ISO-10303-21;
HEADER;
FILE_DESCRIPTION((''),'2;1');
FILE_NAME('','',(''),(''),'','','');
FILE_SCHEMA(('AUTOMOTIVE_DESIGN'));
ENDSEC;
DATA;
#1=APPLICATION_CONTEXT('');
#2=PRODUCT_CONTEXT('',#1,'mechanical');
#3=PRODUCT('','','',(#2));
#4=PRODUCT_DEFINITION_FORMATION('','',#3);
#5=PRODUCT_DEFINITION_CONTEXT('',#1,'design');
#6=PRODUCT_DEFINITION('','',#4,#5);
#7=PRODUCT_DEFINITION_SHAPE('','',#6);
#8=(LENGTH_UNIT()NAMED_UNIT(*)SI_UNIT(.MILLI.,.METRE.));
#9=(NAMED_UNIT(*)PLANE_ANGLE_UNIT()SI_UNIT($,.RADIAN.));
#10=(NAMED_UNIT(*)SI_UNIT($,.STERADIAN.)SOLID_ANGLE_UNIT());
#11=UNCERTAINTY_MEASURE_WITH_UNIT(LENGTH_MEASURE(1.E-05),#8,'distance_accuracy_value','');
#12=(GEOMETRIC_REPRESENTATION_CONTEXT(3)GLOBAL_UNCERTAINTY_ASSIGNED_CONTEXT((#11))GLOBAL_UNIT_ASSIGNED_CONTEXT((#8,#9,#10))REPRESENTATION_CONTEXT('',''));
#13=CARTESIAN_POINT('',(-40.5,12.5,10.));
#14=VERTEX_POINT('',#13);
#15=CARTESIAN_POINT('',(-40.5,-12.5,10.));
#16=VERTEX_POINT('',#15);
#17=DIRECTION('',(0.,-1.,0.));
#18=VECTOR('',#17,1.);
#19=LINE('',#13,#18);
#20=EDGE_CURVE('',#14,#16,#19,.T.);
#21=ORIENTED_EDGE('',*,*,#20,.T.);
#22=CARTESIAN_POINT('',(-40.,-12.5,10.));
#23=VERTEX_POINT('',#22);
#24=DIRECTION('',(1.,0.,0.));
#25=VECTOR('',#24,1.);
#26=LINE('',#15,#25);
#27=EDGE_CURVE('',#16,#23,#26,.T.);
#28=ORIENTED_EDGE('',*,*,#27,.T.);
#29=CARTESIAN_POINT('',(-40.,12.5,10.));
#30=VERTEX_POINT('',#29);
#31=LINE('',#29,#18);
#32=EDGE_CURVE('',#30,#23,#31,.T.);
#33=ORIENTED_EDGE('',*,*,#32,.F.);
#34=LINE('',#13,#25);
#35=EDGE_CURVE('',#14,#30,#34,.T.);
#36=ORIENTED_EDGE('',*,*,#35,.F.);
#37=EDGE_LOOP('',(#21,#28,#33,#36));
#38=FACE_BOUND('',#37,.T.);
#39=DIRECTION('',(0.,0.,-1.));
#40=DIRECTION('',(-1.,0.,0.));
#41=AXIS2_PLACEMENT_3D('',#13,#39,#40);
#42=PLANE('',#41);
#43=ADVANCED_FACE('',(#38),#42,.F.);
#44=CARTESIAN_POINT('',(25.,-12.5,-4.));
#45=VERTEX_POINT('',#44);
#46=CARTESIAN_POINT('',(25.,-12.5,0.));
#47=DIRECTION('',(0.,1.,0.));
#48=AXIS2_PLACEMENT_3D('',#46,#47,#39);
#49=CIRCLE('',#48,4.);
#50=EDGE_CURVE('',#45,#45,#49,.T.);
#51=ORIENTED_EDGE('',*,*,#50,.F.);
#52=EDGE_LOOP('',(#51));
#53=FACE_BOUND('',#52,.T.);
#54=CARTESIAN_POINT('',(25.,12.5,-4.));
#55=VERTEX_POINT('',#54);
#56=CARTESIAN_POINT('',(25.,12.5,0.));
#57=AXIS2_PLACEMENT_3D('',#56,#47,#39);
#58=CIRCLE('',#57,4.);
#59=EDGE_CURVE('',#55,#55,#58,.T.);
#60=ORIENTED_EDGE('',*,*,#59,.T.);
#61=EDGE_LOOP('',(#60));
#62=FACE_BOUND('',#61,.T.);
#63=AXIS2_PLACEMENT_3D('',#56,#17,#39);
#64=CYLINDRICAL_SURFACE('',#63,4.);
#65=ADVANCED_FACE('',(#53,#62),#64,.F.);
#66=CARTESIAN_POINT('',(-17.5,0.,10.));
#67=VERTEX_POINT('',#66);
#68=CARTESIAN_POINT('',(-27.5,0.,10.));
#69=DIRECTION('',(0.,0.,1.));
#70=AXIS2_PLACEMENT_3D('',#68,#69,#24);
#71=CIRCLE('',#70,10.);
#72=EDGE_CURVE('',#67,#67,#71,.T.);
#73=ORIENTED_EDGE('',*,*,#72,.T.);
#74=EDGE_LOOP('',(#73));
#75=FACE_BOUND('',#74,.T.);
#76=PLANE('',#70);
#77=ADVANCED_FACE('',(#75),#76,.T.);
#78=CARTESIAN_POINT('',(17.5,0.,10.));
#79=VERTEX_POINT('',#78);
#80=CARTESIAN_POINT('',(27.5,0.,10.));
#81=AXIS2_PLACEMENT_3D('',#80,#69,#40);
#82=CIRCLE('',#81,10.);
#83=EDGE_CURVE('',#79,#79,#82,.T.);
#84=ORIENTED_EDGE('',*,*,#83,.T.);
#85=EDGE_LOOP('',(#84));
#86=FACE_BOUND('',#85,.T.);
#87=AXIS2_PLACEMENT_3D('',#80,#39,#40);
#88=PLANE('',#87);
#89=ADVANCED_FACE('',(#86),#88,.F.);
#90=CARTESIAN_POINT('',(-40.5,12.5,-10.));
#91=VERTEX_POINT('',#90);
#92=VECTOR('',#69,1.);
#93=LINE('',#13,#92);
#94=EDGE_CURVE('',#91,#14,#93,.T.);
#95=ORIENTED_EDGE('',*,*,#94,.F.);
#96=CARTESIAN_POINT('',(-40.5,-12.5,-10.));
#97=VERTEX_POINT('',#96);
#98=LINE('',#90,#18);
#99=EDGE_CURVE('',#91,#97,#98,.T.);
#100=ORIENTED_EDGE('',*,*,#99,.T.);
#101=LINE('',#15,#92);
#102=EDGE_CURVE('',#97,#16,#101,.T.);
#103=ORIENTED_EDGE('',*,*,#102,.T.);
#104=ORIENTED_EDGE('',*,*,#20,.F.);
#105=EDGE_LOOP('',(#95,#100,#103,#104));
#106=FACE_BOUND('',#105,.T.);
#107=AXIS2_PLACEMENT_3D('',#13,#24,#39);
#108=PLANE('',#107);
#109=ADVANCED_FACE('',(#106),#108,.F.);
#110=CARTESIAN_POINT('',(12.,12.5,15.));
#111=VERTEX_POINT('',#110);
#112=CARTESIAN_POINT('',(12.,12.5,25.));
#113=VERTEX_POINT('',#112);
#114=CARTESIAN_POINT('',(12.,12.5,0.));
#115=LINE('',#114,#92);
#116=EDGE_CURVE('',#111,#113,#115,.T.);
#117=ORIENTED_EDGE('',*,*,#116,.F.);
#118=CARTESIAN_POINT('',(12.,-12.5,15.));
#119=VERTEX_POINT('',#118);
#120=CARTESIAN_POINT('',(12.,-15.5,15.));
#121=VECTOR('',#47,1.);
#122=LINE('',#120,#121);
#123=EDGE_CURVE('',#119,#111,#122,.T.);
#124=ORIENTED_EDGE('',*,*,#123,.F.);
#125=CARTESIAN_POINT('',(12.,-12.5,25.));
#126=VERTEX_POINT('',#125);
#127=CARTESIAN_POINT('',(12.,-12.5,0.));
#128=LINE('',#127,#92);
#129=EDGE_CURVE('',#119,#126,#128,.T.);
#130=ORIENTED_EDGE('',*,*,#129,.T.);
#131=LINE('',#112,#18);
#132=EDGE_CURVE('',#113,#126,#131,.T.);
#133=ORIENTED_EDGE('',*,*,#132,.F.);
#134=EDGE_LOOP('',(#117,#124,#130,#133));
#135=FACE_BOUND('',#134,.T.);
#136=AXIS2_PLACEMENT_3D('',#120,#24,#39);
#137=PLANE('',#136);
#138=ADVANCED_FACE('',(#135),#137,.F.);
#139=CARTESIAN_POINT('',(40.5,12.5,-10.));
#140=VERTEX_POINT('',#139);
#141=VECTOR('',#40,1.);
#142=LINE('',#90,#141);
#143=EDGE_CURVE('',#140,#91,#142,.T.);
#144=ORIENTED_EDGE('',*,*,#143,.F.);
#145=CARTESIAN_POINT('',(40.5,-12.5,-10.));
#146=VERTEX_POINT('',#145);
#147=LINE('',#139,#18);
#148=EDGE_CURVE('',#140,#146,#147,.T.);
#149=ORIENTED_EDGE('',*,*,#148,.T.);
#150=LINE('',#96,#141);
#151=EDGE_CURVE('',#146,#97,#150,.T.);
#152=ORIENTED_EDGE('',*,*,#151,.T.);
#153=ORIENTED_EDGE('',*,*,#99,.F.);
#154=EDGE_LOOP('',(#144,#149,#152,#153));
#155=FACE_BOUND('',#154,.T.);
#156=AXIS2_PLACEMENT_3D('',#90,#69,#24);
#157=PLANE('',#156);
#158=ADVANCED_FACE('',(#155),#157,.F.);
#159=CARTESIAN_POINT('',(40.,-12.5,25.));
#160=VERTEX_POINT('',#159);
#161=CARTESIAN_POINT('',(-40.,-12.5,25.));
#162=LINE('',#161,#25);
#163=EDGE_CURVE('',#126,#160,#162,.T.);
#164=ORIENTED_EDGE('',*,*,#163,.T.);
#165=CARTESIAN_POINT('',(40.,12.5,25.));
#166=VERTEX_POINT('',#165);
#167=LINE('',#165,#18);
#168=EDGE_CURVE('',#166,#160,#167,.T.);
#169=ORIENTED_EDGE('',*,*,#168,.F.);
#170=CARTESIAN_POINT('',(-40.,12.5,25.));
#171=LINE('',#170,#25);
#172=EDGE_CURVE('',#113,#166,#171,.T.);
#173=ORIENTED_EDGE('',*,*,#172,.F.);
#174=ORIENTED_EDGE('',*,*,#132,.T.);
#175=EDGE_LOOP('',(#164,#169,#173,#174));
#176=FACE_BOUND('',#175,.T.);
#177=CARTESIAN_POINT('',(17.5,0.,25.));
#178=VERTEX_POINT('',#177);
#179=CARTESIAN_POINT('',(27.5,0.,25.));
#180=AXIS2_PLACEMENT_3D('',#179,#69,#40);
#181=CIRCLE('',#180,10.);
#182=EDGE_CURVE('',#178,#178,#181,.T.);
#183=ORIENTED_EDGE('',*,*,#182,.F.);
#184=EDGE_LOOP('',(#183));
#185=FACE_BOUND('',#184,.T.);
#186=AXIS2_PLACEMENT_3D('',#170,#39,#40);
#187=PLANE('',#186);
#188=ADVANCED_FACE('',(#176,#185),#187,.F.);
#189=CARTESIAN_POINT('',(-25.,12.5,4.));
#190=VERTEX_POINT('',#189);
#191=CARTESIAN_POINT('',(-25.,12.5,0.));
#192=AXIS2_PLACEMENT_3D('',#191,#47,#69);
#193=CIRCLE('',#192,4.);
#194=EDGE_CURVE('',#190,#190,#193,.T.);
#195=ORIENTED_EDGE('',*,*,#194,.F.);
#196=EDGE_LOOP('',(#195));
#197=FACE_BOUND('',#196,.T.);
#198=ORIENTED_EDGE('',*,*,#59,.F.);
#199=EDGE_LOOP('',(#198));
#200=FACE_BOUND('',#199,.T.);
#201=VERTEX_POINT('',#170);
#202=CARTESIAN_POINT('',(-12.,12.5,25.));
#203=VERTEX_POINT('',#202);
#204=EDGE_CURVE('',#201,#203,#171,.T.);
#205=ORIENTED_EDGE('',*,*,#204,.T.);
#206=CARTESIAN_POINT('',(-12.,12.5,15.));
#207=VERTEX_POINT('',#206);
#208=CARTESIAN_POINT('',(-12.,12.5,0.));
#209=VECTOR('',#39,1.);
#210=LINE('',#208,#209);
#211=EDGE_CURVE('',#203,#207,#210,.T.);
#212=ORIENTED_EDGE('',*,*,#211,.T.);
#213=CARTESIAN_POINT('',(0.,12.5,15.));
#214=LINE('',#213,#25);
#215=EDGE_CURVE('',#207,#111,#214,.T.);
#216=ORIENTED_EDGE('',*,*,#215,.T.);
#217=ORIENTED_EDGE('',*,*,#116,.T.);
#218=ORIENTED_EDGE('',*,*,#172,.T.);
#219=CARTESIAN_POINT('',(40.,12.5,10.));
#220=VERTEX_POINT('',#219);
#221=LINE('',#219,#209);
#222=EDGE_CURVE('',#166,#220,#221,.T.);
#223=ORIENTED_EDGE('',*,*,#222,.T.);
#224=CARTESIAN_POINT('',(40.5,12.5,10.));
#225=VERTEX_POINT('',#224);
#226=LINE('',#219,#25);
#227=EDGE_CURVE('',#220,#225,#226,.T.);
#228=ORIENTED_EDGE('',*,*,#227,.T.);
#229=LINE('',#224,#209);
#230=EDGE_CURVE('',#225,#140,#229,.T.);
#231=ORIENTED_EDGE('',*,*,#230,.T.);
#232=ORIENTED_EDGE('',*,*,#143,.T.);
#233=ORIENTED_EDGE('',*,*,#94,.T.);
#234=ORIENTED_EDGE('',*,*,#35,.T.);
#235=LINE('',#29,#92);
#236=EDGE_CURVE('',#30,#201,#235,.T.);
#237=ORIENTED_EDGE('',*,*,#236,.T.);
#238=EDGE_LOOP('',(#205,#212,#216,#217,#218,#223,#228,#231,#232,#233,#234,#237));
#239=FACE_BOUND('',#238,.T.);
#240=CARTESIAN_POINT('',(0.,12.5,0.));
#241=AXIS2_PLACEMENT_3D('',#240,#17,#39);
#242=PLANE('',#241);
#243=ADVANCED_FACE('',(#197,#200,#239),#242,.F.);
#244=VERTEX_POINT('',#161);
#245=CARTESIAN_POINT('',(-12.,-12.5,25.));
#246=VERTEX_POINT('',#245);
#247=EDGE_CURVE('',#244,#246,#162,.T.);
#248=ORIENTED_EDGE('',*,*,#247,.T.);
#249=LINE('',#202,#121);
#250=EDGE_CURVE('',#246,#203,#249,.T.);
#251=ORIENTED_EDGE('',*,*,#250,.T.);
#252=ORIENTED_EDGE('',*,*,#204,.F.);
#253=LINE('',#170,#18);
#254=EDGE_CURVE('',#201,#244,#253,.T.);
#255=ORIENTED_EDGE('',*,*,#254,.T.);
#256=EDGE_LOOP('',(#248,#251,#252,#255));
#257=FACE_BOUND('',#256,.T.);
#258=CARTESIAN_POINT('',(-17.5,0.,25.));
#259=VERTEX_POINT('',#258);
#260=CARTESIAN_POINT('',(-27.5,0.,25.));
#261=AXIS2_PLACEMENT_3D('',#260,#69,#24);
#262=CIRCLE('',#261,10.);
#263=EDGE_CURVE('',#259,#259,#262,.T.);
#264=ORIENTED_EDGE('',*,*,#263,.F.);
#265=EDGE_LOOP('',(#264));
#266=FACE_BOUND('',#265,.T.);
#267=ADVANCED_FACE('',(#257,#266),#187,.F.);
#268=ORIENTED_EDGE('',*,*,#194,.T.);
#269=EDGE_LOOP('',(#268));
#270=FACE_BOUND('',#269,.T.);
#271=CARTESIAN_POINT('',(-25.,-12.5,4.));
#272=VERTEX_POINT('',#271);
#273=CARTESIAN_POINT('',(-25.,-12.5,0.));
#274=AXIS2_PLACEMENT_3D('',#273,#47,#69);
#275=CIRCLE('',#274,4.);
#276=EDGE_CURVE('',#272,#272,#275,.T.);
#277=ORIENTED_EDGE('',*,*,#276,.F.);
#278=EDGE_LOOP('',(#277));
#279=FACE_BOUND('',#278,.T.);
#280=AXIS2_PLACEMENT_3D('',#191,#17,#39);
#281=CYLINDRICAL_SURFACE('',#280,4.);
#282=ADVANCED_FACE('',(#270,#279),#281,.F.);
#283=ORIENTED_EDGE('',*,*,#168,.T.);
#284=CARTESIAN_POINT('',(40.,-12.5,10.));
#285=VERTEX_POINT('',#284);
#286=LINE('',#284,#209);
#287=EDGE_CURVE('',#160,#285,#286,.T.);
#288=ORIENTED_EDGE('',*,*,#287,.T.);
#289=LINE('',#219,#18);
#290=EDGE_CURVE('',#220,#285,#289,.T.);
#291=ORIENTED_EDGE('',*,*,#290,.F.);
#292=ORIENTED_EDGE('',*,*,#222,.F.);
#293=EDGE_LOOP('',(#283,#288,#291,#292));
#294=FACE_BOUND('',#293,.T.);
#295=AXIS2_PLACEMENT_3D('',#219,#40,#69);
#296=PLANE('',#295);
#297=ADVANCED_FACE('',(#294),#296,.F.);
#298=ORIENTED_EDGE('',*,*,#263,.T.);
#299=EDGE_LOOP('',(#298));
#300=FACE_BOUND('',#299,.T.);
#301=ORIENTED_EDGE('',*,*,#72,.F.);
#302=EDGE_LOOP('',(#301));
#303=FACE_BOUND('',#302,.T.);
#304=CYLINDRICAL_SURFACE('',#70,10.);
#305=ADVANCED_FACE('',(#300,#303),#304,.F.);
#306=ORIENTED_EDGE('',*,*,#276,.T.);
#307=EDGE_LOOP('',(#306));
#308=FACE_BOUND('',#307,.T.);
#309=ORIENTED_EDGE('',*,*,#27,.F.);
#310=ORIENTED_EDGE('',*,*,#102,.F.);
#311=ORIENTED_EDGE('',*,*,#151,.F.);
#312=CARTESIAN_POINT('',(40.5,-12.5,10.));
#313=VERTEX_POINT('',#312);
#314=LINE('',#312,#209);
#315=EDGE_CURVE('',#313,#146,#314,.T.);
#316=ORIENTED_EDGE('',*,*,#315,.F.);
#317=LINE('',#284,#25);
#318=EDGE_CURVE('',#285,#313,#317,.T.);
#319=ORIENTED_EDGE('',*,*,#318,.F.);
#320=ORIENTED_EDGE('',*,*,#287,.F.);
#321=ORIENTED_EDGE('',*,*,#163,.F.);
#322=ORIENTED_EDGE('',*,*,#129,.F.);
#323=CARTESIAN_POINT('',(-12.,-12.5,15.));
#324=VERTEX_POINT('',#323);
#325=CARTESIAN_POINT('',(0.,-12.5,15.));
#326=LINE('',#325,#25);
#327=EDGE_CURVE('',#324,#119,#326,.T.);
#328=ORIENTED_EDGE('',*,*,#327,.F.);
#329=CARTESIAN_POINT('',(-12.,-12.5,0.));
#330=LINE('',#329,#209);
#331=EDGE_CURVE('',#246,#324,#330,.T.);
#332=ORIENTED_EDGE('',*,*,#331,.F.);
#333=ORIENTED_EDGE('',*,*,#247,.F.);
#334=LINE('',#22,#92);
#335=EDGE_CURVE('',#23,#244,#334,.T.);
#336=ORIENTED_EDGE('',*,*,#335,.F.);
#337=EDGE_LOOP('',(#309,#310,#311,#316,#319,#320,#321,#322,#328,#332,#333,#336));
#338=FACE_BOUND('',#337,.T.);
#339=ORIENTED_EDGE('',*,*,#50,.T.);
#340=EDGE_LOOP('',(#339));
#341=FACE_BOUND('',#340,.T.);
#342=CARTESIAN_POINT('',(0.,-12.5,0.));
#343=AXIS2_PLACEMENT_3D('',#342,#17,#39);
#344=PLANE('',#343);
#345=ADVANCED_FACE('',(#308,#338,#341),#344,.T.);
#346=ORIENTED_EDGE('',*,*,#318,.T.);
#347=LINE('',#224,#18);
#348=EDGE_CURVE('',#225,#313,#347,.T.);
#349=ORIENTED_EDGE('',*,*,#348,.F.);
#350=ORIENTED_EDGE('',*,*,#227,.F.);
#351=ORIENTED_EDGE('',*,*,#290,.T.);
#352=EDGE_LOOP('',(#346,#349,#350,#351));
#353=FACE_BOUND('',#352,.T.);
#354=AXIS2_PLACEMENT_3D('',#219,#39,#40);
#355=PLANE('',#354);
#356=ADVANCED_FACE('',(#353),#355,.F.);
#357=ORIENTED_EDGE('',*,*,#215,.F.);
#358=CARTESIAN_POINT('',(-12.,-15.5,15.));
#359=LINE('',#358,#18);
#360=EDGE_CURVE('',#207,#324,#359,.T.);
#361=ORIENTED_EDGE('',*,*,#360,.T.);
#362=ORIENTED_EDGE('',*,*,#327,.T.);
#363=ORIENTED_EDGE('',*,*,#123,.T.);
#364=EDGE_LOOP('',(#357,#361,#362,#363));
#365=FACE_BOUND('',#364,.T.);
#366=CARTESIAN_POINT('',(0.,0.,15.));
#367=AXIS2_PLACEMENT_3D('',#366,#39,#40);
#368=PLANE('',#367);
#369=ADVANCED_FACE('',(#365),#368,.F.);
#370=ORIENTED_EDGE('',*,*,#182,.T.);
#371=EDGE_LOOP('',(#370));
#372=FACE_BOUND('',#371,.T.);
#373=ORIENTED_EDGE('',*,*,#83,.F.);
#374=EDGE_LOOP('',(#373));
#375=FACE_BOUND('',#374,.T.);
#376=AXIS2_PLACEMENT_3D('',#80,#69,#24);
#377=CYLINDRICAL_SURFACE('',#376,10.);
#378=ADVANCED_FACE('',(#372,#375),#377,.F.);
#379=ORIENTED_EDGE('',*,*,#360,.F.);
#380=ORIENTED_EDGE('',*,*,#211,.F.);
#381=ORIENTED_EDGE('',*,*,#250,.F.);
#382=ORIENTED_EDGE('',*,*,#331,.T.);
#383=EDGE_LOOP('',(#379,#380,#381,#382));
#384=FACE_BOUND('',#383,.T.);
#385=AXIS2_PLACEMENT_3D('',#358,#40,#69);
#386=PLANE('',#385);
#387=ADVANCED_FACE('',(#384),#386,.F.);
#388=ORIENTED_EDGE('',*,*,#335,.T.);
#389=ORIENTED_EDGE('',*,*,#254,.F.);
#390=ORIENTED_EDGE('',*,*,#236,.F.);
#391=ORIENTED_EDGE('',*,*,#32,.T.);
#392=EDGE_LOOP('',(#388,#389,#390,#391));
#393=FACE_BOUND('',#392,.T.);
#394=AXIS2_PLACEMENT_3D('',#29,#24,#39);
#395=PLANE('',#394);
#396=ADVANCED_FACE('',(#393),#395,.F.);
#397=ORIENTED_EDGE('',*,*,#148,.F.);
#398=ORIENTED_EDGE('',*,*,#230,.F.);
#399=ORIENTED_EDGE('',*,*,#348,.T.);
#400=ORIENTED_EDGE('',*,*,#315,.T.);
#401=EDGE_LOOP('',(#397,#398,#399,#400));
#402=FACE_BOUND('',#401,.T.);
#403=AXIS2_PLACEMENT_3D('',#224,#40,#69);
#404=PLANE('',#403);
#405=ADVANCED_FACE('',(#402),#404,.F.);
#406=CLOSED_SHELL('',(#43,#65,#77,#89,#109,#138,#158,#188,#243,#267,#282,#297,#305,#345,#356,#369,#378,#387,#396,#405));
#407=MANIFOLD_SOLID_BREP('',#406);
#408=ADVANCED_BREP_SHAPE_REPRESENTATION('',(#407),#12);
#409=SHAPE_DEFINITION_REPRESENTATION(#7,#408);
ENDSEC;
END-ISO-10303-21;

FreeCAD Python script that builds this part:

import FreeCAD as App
import Part
import Sketcher

V = App.Vector
Q = App.Units.Quantity

doc = App.newDocument("Part")
params = doc.addObject("Spreadsheet::Sheet", "Params")
for row, (alias, value) in enumerate([
    ("sketch1_diameter", "8 mm"),
    ("sketch1_width", "80 mm"),
    ("sketch1_width2", "81 mm"),
    ("sketch1_height", "15 mm"),
    ("sketch1_height2", "20 mm"),
    ("pad1_length", "25 mm"),
    ("sketch2_diameter", "20 mm"),
    ("pocket1_length", "15 mm"),
    ("sketch3_width", "24 mm"),
    ("sketch3_height", "31 mm"),
    ("pocket2_length", "10 mm"),
], start=1):
    params.set(f"A{row}", alias)
    params.set(f"B{row}", "=" + value)
    params.setAlias(f"B{row}", alias)

body = doc.addObject("PartDesign::Body", "Body")

sketch1 = body.newObject("Sketcher::SketchObject", "Sketch")
sketch1.AttachmentSupport = (doc.getObject("XZ_Plane"), [""])
sketch1.MapMode = "FlatFace"
sketch1.addGeometry([
    Part.LineSegment(V(-40.5, 10, 0), V(-40, 10, 0)),
    Part.LineSegment(V(-40, 10, 0), V(-40, 25, 0)),
    Part.LineSegment(V(-40, 25, 0), V(40, 25, 0)),
    Part.LineSegment(V(40, 25, 0), V(40, 10, 0)),
    Part.LineSegment(V(40, 10, 0), V(40.5, 10, 0)),
    Part.LineSegment(V(40.5, 10, 0), V(40.5, -10, 0)),
    Part.LineSegment(V(40.5, -10, 0), V(-40.5, -10, 0)),
    Part.LineSegment(V(-40.5, -10, 0), V(-40.5, 10, 0)),
    Part.Circle(V(-25, 0, 0), V(0, 0, 1), 4),
    Part.Circle(V(25, 0, 0), V(0, 0, 1), 4),
], False)
sketch1.addConstraint([
    Sketcher.Constraint("Coincident", 0, 2, 1, 1),
    Sketcher.Constraint("Coincident", 1, 2, 2, 1),
    Sketcher.Constraint("Coincident", 2, 2, 3, 1),
    Sketcher.Constraint("Coincident", 3, 2, 4, 1),
    Sketcher.Constraint("Coincident", 4, 2, 5, 1),
    Sketcher.Constraint("Coincident", 5, 2, 6, 1),
    Sketcher.Constraint("Coincident", 6, 2, 7, 1),
    Sketcher.Constraint("Coincident", 7, 2, 0, 1),
    Sketcher.Constraint("Horizontal", 0),
    Sketcher.Constraint("Vertical", 1),
    Sketcher.Constraint("Horizontal", 2),
    Sketcher.Constraint("Vertical", 3),
    Sketcher.Constraint("Horizontal", 4),
    Sketcher.Constraint("Vertical", 5),
    Sketcher.Constraint("Horizontal", 6),
    Sketcher.Constraint("Vertical", 7),
    Sketcher.Constraint("Equal", 8, 9),
    Sketcher.Constraint("Symmetric", 8, 3, 9, 3, -1, 1),
    Sketcher.Constraint("Symmetric", 4, 2, 6, 2, -1, 1),
    Sketcher.Constraint("Symmetric", 0, 2, 3, 2, -2),
    Sketcher.Constraint("PointOnObject", 8, 3, -1),
    Sketcher.Constraint("Diameter", 8, Q("8 mm")),
    Sketcher.Constraint("DistanceX", 2, 1, 2, 2, Q("80 mm")),
    Sketcher.Constraint("DistanceX", 6, 2, 6, 1, Q("81 mm")),
    Sketcher.Constraint("DistanceY", 1, 1, 1, 2, Q("15 mm")),
    Sketcher.Constraint("DistanceY", 5, 2, 5, 1, Q("20 mm")),
    Sketcher.Constraint("DistanceX", 8, 3, -1, 1, Q("25 mm")),
])
sketch1.setExpression("Constraints[21]", "Params.sketch1_diameter")
sketch1.setExpression("Constraints[22]", "Params.sketch1_width")
sketch1.setExpression("Constraints[23]", "Params.sketch1_width2")
sketch1.setExpression("Constraints[24]", "Params.sketch1_height")
sketch1.setExpression("Constraints[25]", "Params.sketch1_height2")
pad1 = body.newObject("PartDesign::Pad", "Pad")
pad1.Profile = sketch1
pad1.setExpression("Length", "Params.pad1_length")
pad1.Midplane = True

sketch2 = body.newObject("Sketcher::SketchObject", "Sketch001")
sketch2.AttachmentSupport = (doc.getObject("XY_Plane"), [""])
sketch2.MapMode = "FlatFace"
sketch2.AttachmentOffset = App.Placement(V(0, 0, 25), App.Rotation())
sketch2.addGeometry([
    Part.Circle(V(-27.5, 0, 0), V(0, 0, 1), 10),
    Part.Circle(V(27.5, 0, 0), V(0, 0, 1), 10),
], False)
sketch2.addConstraint([
    Sketcher.Constraint("Equal", 0, 1),
    Sketcher.Constraint("Symmetric", 0, 3, 1, 3, -1, 1),
    Sketcher.Constraint("PointOnObject", 0, 3, -1),
    Sketcher.Constraint("Diameter", 0, Q("20 mm")),
    Sketcher.Constraint("DistanceX", 0, 3, 1, 3, Q("55 mm")),
])
sketch2.setExpression("Constraints[3]", "Params.sketch2_diameter")
pocket1 = body.newObject("PartDesign::Pocket", "Pocket")
pocket1.Profile = sketch2
pocket1.setExpression("Length", "Params.pocket1_length")

sketch3 = body.newObject("Sketcher::SketchObject", "Sketch002")
sketch3.AttachmentSupport = (doc.getObject("XY_Plane"), [""])
sketch3.MapMode = "FlatFace"
sketch3.AttachmentOffset = App.Placement(V(0, 0, 25), App.Rotation())
sketch3.addGeometry([
    Part.LineSegment(V(-12, 15.5, 0), V(-12, -15.5, 0)),
    Part.LineSegment(V(-12, -15.5, 0), V(12, -15.5, 0)),
    Part.LineSegment(V(12, -15.5, 0), V(12, 15.5, 0)),
    Part.LineSegment(V(12, 15.5, 0), V(-12, 15.5, 0)),
], False)
sketch3.addConstraint([
    Sketcher.Constraint("Coincident", 0, 2, 1, 1),
    Sketcher.Constraint("Coincident", 1, 2, 2, 1),
    Sketcher.Constraint("Coincident", 2, 2, 3, 1),
    Sketcher.Constraint("Coincident", 3, 2, 0, 1),
    Sketcher.Constraint("Vertical", 0),
    Sketcher.Constraint("Horizontal", 1),
    Sketcher.Constraint("Vertical", 2),
    Sketcher.Constraint("Horizontal", 3),
    Sketcher.Constraint("Symmetric", 0, 2, 2, 2, -1, 1),
    Sketcher.Constraint("DistanceX", 1, 1, 1, 2, Q("24 mm")),
    Sketcher.Constraint("DistanceY", 0, 2, 0, 1, Q("31 mm")),
])
sketch3.setExpression("Constraints[9]", "Params.sketch3_width")
sketch3.setExpression("Constraints[10]", "Params.sketch3_height")
pocket2 = body.newObject("PartDesign::Pocket", "Pocket001")
pocket2.Profile = sketch3
pocket2.setExpression("Length", "Params.pocket2_length")

doc.recompute()
